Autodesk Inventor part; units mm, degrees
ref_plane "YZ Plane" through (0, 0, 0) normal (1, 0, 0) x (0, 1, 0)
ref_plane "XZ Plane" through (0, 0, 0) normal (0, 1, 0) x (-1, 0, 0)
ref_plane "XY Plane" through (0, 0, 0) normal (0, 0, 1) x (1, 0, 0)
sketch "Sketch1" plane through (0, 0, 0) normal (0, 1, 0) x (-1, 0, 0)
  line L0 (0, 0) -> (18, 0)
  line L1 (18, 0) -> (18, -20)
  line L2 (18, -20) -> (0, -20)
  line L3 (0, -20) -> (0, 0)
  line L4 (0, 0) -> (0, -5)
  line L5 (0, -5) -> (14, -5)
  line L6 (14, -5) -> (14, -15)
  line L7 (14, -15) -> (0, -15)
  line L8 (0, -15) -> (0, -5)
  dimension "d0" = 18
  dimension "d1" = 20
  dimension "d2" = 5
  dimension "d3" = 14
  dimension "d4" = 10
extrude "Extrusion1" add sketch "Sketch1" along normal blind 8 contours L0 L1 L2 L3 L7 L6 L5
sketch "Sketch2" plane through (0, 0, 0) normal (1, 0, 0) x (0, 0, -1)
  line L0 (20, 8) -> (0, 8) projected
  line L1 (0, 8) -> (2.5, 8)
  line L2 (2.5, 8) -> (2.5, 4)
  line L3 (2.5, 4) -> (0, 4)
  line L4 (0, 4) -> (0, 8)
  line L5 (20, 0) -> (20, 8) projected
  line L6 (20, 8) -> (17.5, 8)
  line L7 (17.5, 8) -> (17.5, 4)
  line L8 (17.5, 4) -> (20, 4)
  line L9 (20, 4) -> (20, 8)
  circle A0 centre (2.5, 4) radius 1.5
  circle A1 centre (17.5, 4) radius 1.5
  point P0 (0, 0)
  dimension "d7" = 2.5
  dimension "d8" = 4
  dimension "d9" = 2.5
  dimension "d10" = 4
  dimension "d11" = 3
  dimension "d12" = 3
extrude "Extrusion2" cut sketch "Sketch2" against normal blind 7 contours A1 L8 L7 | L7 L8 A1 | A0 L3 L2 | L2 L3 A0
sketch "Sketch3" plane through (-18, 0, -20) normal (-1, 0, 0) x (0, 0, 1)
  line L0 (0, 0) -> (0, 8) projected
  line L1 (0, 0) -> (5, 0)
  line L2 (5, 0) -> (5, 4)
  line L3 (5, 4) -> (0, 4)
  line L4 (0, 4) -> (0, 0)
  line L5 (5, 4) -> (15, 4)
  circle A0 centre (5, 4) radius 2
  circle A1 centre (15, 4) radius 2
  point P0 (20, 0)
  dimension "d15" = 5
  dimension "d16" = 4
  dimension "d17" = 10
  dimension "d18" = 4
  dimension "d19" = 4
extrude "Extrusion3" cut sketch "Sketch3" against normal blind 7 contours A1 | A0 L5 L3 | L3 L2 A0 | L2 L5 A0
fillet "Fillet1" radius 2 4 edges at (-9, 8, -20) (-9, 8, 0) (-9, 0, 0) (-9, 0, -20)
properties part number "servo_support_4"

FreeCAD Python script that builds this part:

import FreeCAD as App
import Part
import Sketcher


def edges_at(feature, points):
    """Names of the edges that pass closest to the given points."""
    edges = feature.Shape.Edges
    near = lambda p: min(range(len(edges)), key=lambda i: edges[i].distToShape(Part.Vertex(*p))[0])
    return sorted({f"Edge{near(p) + 1}" for p in points})


def add_polygon(sketch, points):
    """Adds a closed chain of lines whose ends are joined by coincident constraints."""
    first, n = sketch.GeometryCount, len(points)
    for a, b in zip(points, points[1:] + points[:1]):
        sketch.addGeometry(Part.LineSegment(App.Vector(*a, 0), App.Vector(*b, 0)), False)
    for i in range(n):
        sketch.addConstraint(Sketcher.Constraint("Coincident", first + i, 2, first + (i + 1) % n, 1))

doc = App.newDocument("Part")
params = doc.addObject("Spreadsheet::Sheet", "Params")
for row, (alias, value) in enumerate([
    ("sketch1_width", "18 mm"),
    ("sketch1_width2", "14 mm"),
    ("sketch1_height", "5 mm"),
    ("sketch1_height2", "10 mm"),
    ("pad1_length", "8 mm"),
    ("sketch2_diameter", "3 mm"),
    ("pocket1_length", "7 mm"),
    ("sketch3_diameter", "4 mm"),
    ("pocket2_length", "7 mm"),
    ("fillet_radius", "2 mm"),
], start=1):
    params.set(f"A{row}", alias)
    params.set(f"B{row}", "=" + value)
    params.setAlias(f"B{row}", alias)

body = doc.addObject("PartDesign::Body", "Body")

sketch1 = body.newObject("Sketcher::SketchObject", "Sketch")
sketch1.AttachmentSupport = (doc.getObject("XZ_Plane"), [""])
sketch1.MapMode = "FlatFace"
add_polygon(sketch1, [(-18, 0), (0, 0), (0, -5), (-14, -5), (-14, -15), (0, -15), (0, -20), (-18, -20)])
sketch1.addConstraint(Sketcher.Constraint("Horizontal", 0))
sketch1.addConstraint(Sketcher.Constraint("Vertical", 1))
sketch1.addConstraint(Sketcher.Constraint("Horizontal", 2))
sketch1.addConstraint(Sketcher.Constraint("Vertical", 3))
sketch1.addConstraint(Sketcher.Constraint("Horizontal", 4))
sketch1.addConstraint(Sketcher.Constraint("Vertical", 5))
sketch1.addConstraint(Sketcher.Constraint("Horizontal", 6))
sketch1.addConstraint(Sketcher.Constraint("Vertical", 7))
sketch1.addConstraint(Sketcher.Constraint("Coincident", 0, 2, -1, 1))
sketch1.addConstraint(Sketcher.Constraint("PointOnObject", 4, 2, -2))
sketch1.addConstraint(Sketcher.Constraint("Equal", 1, 5))
sketch1.addConstraint(Sketcher.Constraint("DistanceX", 0, 1, 0, 2, 18.0))
sketch1.addConstraint(Sketcher.Constraint("DistanceX", 2, 2, 2, 1, 14.0))
sketch1.addConstraint(Sketcher.Constraint("DistanceY", 1, 2, 1, 1, 5.0))
sketch1.addConstraint(Sketcher.Constraint("DistanceY", 3, 2, 3, 1, 10.0))
sketch1.setExpression("Constraints[19]", "Params.sketch1_width")
sketch1.setExpression("Constraints[20]", "Params.sketch1_width2")
sketch1.setExpression("Constraints[21]", "Params.sketch1_height")
sketch1.setExpression("Constraints[22]", "Params.sketch1_height2")
pad1 = body.newObject("PartDesign::Pad", "Pad")
pad1.Profile = sketch1
pad1.setExpression("Length", "Params.pad1_length")
pad1.Reversed = True

sketch2 = body.newObject("Sketcher::SketchObject", "Sketch001")
sketch2.AttachmentSupport = (doc.getObject("YZ_Plane"), [""])
sketch2.MapMode = "FlatFace"
sketch2.addGeometry(Part.Circle(App.Vector(4, -17.5, 0), App.Vector(0, 0, 1), 1.5), False)
sketch2.addGeometry(Part.Circle(App.Vector(4, -2.5, 0), App.Vector(0, 0, 1), 1.5), False)
sketch2.addConstraint(Sketcher.Constraint("Equal", 0, 1))
sketch2.addConstraint(Sketcher.Constraint("Vertical", 0, 3, 1, 3))
sketch2.addConstraint(Sketcher.Constraint("Diameter", 0, 3.0))
sketch2.addConstraint(Sketcher.Constraint("DistanceX", -1, 1, 0, 3, 4.0))
sketch2.addConstraint(Sketcher.Constraint("DistanceY", 1, 3, -1, 1, 2.5))
sketch2.addConstraint(Sketcher.Constraint("DistanceY", 0, 3, 1, 3, 15.0))
sketch2.setExpression("Constraints[2]", "Params.sketch2_diameter")
pocket1 = body.newObject("PartDesign::Pocket", "Pocket")
pocket1.Profile = sketch2
pocket1.setExpression("Length", "Params.pocket1_length")

sketch3 = body.newObject("Sketcher::SketchObject", "Sketch002")
sketch3.AttachmentSupport = (doc.getObject("YZ_Plane"), [""])
sketch3.MapMode = "FlatFace"
sketch3.AttachmentOffset = App.Placement(App.Vector(0, 0, -18), App.Rotation())
sketch3.addGeometry(Part.Circle(App.Vector(4, -5, 0), App.Vector(0, 0, 1), 2), False)
sketch3.addGeometry(Part.Circle(App.Vector(4, -15, 0), App.Vector(0, 0, 1), 2), False)
sketch3.addConstraint(Sketcher.Constraint("Equal", 0, 1))
sketch3.addConstraint(Sketcher.Constraint("Vertical", 0, 3, 1, 3))
sketch3.addConstraint(Sketcher.Constraint("Diameter", 0, 4.0))
sketch3.addConstraint(Sketcher.Constraint("DistanceX", -1, 1, 0, 3, 4.0))
sketch3.addConstraint(Sketcher.Constraint("DistanceY", 0, 3, -1, 1, 5.0))
sketch3.addConstraint(Sketcher.Constraint("DistanceY", 1, 3, 0, 3, 10.0))
sketch3.setExpression("Constraints[2]", "Params.sketch3_diameter")
pocket2 = body.newObject("PartDesign::Pocket", "Pocket001")
pocket2.Profile = sketch3
pocket2.setExpression("Length", "Params.pocket2_length")
pocket2.Reversed = True
doc.recompute()

fillet = body.newObject("PartDesign::Fillet", "Fillet")
fillet.Base = (pocket2, edges_at(pocket2, [
    (-9, 8, -20),
    (-9, 8, 0),
    (-9, 0, 0),
    (-9, 0, -20),
]))
fillet.setExpression("Radius", "Params.fillet_radius")

doc.recompute()
